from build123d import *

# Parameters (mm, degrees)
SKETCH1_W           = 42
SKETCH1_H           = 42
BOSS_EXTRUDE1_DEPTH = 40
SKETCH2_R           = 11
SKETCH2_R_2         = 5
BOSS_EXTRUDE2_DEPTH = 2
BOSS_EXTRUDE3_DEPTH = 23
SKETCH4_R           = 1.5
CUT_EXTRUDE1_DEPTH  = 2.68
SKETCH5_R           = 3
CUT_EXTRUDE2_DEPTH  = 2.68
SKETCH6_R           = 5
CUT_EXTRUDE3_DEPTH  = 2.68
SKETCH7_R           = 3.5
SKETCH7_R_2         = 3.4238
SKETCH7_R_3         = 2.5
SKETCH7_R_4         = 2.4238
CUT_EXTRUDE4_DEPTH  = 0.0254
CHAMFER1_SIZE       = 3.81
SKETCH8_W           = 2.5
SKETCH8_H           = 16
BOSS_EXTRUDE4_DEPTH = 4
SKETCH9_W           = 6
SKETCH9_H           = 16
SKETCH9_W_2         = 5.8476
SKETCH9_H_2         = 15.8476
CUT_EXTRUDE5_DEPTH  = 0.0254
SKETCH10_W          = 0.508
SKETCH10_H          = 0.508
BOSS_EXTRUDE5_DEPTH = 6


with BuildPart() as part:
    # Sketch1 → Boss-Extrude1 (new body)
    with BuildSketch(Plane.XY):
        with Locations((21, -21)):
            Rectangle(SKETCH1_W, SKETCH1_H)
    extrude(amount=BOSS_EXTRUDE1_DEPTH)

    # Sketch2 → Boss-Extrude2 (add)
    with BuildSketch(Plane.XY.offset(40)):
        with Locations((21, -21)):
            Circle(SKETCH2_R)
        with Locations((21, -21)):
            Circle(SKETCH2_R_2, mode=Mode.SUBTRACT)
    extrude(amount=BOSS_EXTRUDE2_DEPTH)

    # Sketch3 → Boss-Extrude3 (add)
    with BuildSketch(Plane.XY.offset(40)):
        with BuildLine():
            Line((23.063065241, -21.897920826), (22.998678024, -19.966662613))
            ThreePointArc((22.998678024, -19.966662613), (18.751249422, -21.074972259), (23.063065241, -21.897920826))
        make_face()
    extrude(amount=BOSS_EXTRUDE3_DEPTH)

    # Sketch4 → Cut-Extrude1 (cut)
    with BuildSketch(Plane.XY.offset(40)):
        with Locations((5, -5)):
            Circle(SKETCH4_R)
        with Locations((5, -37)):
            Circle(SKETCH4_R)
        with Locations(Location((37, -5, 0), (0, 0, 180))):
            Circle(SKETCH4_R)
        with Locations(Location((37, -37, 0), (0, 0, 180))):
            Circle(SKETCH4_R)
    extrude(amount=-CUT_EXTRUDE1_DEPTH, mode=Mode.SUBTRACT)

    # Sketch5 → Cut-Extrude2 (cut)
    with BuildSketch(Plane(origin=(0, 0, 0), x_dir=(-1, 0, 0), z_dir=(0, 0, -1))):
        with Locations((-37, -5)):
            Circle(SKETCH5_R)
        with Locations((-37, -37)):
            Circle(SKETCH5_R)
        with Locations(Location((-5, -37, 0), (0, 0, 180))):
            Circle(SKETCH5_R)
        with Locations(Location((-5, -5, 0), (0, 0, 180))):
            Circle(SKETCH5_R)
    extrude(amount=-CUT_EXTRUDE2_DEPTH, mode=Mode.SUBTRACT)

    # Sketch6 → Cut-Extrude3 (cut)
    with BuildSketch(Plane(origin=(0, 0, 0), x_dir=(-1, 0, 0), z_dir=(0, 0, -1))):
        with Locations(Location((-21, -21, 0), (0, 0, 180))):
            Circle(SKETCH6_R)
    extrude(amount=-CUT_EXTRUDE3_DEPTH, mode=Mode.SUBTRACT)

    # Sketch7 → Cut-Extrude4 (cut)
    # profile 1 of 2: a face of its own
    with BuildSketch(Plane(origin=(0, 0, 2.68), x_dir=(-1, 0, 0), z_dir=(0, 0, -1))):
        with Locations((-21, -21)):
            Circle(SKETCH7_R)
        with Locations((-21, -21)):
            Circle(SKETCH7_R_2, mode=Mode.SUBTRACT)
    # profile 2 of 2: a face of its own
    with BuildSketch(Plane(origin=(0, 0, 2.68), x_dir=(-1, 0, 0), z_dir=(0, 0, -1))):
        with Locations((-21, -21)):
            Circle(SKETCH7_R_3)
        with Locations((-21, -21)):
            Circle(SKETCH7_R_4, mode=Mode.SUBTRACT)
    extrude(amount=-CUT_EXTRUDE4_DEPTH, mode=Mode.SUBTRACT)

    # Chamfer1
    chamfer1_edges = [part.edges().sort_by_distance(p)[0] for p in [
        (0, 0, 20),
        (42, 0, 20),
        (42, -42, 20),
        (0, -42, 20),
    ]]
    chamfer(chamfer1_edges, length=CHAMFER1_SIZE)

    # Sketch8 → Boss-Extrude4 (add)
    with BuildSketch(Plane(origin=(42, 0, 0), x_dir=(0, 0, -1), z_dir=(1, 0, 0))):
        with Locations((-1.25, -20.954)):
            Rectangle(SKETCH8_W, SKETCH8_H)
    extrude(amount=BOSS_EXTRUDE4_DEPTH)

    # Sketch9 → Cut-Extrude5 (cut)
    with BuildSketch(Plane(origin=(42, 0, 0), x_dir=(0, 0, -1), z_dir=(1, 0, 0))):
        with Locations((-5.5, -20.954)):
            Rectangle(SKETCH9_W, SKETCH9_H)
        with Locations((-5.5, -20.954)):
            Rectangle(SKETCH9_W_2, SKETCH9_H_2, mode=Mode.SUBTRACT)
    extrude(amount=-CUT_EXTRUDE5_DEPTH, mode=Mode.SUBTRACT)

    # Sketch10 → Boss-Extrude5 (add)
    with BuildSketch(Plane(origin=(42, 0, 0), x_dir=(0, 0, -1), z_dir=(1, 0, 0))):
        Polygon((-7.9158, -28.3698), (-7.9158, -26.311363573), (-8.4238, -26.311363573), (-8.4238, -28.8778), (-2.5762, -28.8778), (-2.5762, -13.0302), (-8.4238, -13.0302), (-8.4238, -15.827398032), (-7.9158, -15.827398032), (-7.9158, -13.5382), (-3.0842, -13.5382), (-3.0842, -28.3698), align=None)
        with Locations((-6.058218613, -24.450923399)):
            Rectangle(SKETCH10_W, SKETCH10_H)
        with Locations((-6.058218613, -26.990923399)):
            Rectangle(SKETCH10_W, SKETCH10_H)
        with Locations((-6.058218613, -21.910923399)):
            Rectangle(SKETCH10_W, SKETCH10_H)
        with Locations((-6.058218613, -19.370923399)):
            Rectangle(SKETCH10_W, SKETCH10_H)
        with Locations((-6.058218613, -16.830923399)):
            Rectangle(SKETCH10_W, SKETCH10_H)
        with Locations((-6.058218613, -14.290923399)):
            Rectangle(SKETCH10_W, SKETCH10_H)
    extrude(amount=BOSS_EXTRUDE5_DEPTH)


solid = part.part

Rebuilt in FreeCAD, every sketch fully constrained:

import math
import FreeCAD as App
import Part
import Sketcher

V = App.Vector
Q = App.Units.Quantity


def edges_at(feature, points):
    """Names of the edges that pass closest to the given points."""
    edges = feature.Shape.Edges
    near = lambda p: min(range(len(edges)), key=lambda i: edges[i].distToShape(Part.Vertex(*p))[0])
    return sorted({f"Edge{near(p) + 1}" for p in points})


def add_polygon(sketch, points):
    """Adds a closed chain of lines whose ends are joined by coincident constraints."""
    first, n = sketch.GeometryCount, len(points)
    for a, b in zip(points, points[1:] + points[:1]):
        sketch.addGeometry(Part.LineSegment(App.Vector(*a, 0), App.Vector(*b, 0)), False)
    for i in range(n):
        sketch.addConstraint(Sketcher.Constraint("Coincident", first + i, 2, first + (i + 1) % n, 1))

doc = App.newDocument("Part")
body = doc.addObject("PartDesign::Body", "Body")

sketch1 = body.newObject("Sketcher::SketchObject", "Sketch")
sketch1.AttachmentSupport = (doc.getObject("XY_Plane"), [""])
sketch1.MapMode = "FlatFace"
add_polygon(sketch1, [(0, 0), (0, -42), (42, -42), (42, 0)])
sketch1.addConstraint(Sketcher.Constraint("Vertical", 0))
sketch1.addConstraint(Sketcher.Constraint("Horizontal", 1))
sketch1.addConstraint(Sketcher.Constraint("Vertical", 2))
sketch1.addConstraint(Sketcher.Constraint("Horizontal", 3))
sketch1.addConstraint(Sketcher.Constraint("Coincident", 3, 2, -1, 1))
sketch1.addConstraint(Sketcher.Constraint("Equal", 3, 0))
sketch1.addConstraint(Sketcher.Constraint("DistanceX", 1, 1, 1, 2, Q("42 mm")))
pad1 = body.newObject("PartDesign::Pad", "Pad")
pad1.Profile = sketch1
pad1.Length = 40

sketch2 = body.newObject("Sketcher::SketchObject", "Sketch001")
sketch2.AttachmentSupport = (doc.getObject("XY_Plane"), [""])
sketch2.MapMode = "FlatFace"
sketch2.AttachmentOffset = App.Placement(V(0, 0, 40), App.Rotation())
sketch2.addGeometry(Part.Circle(V(21, -21, 0), V(0, 0, 1), 11), False)
sketch2.addGeometry(Part.Circle(V(21, -21, 0), V(0, 0, 1), 5), False)
sketch2.addConstraint(Sketcher.Constraint("Coincident", 1, 3, 0, 3))
sketch2.addConstraint(Sketcher.Constraint("Diameter", 0, Q("22 mm")))
sketch2.addConstraint(Sketcher.Constraint("Diameter", 1, Q("10 mm")))
sketch2.addConstraint(Sketcher.Constraint("DistanceX", -1, 1, 0, 3, Q("21 mm")))
sketch2.addConstraint(Sketcher.Constraint("DistanceY", 0, 3, -1, 1, Q("21 mm")))
pad2 = body.newObject("PartDesign::Pad", "Pad001")
pad2.Profile = sketch2
pad2.Length = 2

sketch3 = body.newObject("Sketcher::SketchObject", "Sketch002")
sketch3.AttachmentSupport = (doc.getObject("XY_Plane"), [""])
sketch3.MapMode = "FlatFace"
sketch3.AttachmentOffset = App.Placement(V(0, 0, 40), App.Rotation())
sketch3.addGeometry(Part.LineSegment(V(23.1, -21.9, 0), V(23, -20, 0)), False)
sketch3.addGeometry(Part.ArcOfCircle(Part.Circle(V(21, -21, 0), V(0, 0, 1), 2.2), math.radians(27), math.radians(336)), False)
sketch3.addConstraint(Sketcher.Constraint("Coincident", 0, 1, 1, 2))
sketch3.addConstraint(Sketcher.Constraint("Coincident", 1, 1, 0, 2))
sketch3.addConstraint(Sketcher.Constraint("Radius", 1, Q("2.25 mm")))
sketch3.addConstraint(Sketcher.Constraint("DistanceX", -1, 1, 1, 3, Q("21 mm")))
sketch3.addConstraint(Sketcher.Constraint("DistanceY", 1, 3, -1, 1, Q("21 mm")))
sketch3.addConstraint(Sketcher.Constraint("Distance", 0, Q("1.932331 mm")))
sketch3.addConstraint(Sketcher.Constraint("DistanceY", 0, 1, -1, 1, Q("21.897921 mm")))
pad3 = body.newObject("PartDesign::Pad", "Pad002")
pad3.Profile = sketch3
pad3.Length = 23

sketch4 = body.newObject("Sketcher::SketchObject", "Sketch003")
sketch4.AttachmentSupport = (doc.getObject("XY_Plane"), [""])
sketch4.MapMode = "FlatFace"
sketch4.AttachmentOffset = App.Placement(V(0, 0, 40), App.Rotation())
sketch4.addGeometry(Part.Circle(V(5, -5, 0), V(0, 0, 1), 1.5), False)
sketch4.addGeometry(Part.Circle(V(5, -37, 0), V(0, 0, 1), 1.5), False)
sketch4.addGeometry(Part.Circle(V(37, -5, 0), V(0, 0, 1), 1.5), False)
sketch4.addGeometry(Part.Circle(V(37, -37, 0), V(0, 0, 1), 1.5), False)
sketch4.addConstraint(Sketcher.Constraint("Equal", 0, 1))
sketch4.addConstraint(Sketcher.Constraint("Equal", 1, 2))
sketch4.addConstraint(Sketcher.Constraint("Equal", 2, 3))
sketch4.addConstraint(Sketcher.Constraint("Horizontal", 0, 3, 2, 3))
sketch4.addConstraint(Sketcher.Constraint("Horizontal", 1, 3, 3, 3))
sketch4.addConstraint(Sketcher.Constraint("Vertical", 0, 3, 1, 3))
sketch4.addConstraint(Sketcher.Constraint("Vertical", 2, 3, 3, 3))
sketch4.addConstraint(Sketcher.Constraint("Diameter", 0, Q("3 mm")))
sketch4.addConstraint(Sketcher.Constraint("DistanceX", -1, 1, 0, 3, Q("5 mm")))
sketch4.addConstraint(Sketcher.Constraint("DistanceY", 0, 3, -1, 1, Q("5 mm")))
sketch4.addConstraint(Sketcher.Constraint("DistanceY", 1, 3, -1, 1, Q("37 mm")))
sketch4.addConstraint(Sketcher.Constraint("DistanceX", -1, 1, 2, 3, Q("37 mm")))
pocket1 = body.newObject("PartDesign::Pocket", "Pocket")
pocket1.Profile = sketch4
pocket1.Length = 2.68

sketch5 = body.newObject("Sketcher::SketchObject", "Sketch004")
sketch5.AttachmentSupport = (doc.getObject("XY_Plane"), [""])
sketch5.MapMode = "FlatFace"
sketch5.addGeometry(Part.Circle(V(37, -5, 0), V(0, 0, 1), 3), False)
sketch5.addGeometry(Part.Circle(V(37, -37, 0), V(0, 0, 1), 3), False)
sketch5.addGeometry(Part.Circle(V(5, -37, 0), V(0, 0, 1), 3), False)
sketch5.addGeometry(Part.Circle(V(5, -5, 0), V(0, 0, 1), 3), False)
sketch5.addConstraint(Sketcher.Constraint("Equal", 0, 1))
sketch5.addConstraint(Sketcher.Constraint("Equal", 1, 2))
sketch5.addConstraint(Sketcher.Constraint("Equal", 2, 3))
sketch5.addConstraint(Sketcher.Constraint("Horizontal", 1, 3, 2, 3))
sketch5.addConstraint(Sketcher.Constraint("Horizontal", 0, 3, 3, 3))
sketch5.addConstraint(Sketcher.Constraint("Vertical", 0, 3, 1, 3))
sketch5.addConstraint(Sketcher.Constraint("Vertical", 2, 3, 3, 3))
sketch5.addConstraint(Sketcher.Constraint("Diameter", 0, Q("6 mm")))
sketch5.addConstraint(Sketcher.Constraint("DistanceX", -1, 1, 0, 3, Q("37 mm")))
sketch5.addConstraint(Sketcher.Constraint("DistanceY", 0, 3, -1, 1, Q("5 mm")))
sketch5.addConstraint(Sketcher.Constraint("DistanceY", 1, 3, -1, 1, Q("37 mm")))
sketch5.addConstraint(Sketcher.Constraint("DistanceX", -1, 1, 2, 3, Q("5 mm")))
pocket2 = body.newObject("PartDesign::Pocket", "Pocket001")
pocket2.Profile = sketch5
pocket2.Length = 2.68
pocket2.Reversed = True

sketch6 = body.newObject("Sketcher::SketchObject", "Sketch005")
sketch6.AttachmentSupport = (doc.getObject("XY_Plane"), [""])
sketch6.MapMode = "FlatFace"
sketch6.addGeometry(Part.Circle(V(21, -21, 0), V(0, 0, 1), 5), False)
sketch6.addConstraint(Sketcher.Constraint("Diameter", 0, Q("10 mm")))
sketch6.addConstraint(Sketcher.Constraint("DistanceX", -1, 1, 0, 3, Q("21 mm")))
sketch6.addConstraint(Sketcher.Constraint("DistanceY", 0, 3, -1, 1, Q("21 mm")))
pocket3 = body.newObject("PartDesign::Pocket", "Pocket002")
pocket3.Profile = sketch6
pocket3.Length = 2.68
pocket3.Reversed = True

sketch7 = body.newObject("Sketcher::SketchObject", "Sketch006")
sketch7.AttachmentSupport = (doc.getObject("XY_Plane"), [""])
sketch7.MapMode = "FlatFace"
sketch7.AttachmentOffset = App.Placement(V(0, 0, 2.68), App.Rotation())
sketch7.addGeometry(Part.Circle(V(21, -21, 0), V(0, 0, 1), 3.5), False)
sketch7.addGeometry(Part.Circle(V(21, -21, 0), V(0, 0, 1), 3.4), False)
sketch7.addGeometry(Part.Circle(V(21, -21, 0), V(0, 0, 1), 2.5), False)
sketch7.addGeometry(Part.Circle(V(21, -21, 0), V(0, 0, 1), 2.4), False)
sketch7.addConstraint(Sketcher.Constraint("Coincident", 1, 3, 0, 3))
sketch7.addConstraint(Sketcher.Constraint("Coincident", 2, 3, 0, 3))
sketch7.addConstraint(Sketcher.Constraint("Coincident", 3, 3, 0, 3))
sketch7.addConstraint(Sketcher.Constraint("Diameter", 0, Q("7 mm")))
sketch7.addConstraint(Sketcher.Constraint("Diameter", 2, Q("5 mm")))
sketch7.addConstraint(Sketcher.Constraint("DistanceX", -1, 1, 0, 3, Q("21 mm")))
sketch7.addConstraint(Sketcher.Constraint("DistanceY", 0, 3, -1, 1, Q("21 mm")))
sketch7.addConstraint(Sketcher.Constraint("Diameter", 1, Q("6.8476 mm")))
sketch7.addConstraint(Sketcher.Constraint("Diameter", 3, Q("4.8476 mm")))
pocket4 = body.newObject("PartDesign::Pocket", "Pocket003")
pocket4.Profile = sketch7
pocket4.Length = 0.0254
pocket4.Reversed = True
doc.recompute()

chamfer = body.newObject("PartDesign::Chamfer", "Chamfer")
chamfer.Base = (pocket4, edges_at(pocket4, [
    (0, 0, 20),
    (42, 0, 20),
    (42, -42, 20),
    (0, -42, 20),
]))
chamfer.Size = 3.81

sketch8 = body.newObject("Sketcher::SketchObject", "Sketch007")
sketch8.AttachmentSupport = (doc.getObject("YZ_Plane"), [""])
sketch8.MapMode = "FlatFace"
sketch8.AttachmentOffset = App.Placement(V(0, 0, 42), App.Rotation())
add_polygon(sketch8, [(-13, 2.5), (-29, 2.5), (-29, 0), (-13, 0)])
sketch8.addConstraint(Sketcher.Constraint("Horizontal", 0))
sketch8.addConstraint(Sketcher.Constraint("Vertical", 1))
sketch8.addConstraint(Sketcher.Constraint("Horizontal", 2))
sketch8.addConstraint(Sketcher.Constraint("Vertical", 3))
sketch8.addConstraint(Sketcher.Constraint("PointOnObject", 1, 2, -1))
sketch8.addConstraint(Sketcher.Constraint("DistanceX", 0, 2, 0, 1, Q("16 mm")))
sketch8.addConstraint(Sketcher.Constraint("DistanceY", 1, 2, 1, 1, Q("2.5 mm")))
sketch8.addConstraint(Sketcher.Constraint("DistanceX", 0, 2, -1, 1, Q("28.954 mm")))
pad4 = body.newObject("PartDesign::Pad", "Pad003")
pad4.Profile = sketch8
pad4.Length = 4

sketch9 = body.newObject("Sketcher::SketchObject", "Sketch008")
sketch9.AttachmentSupport = (doc.getObject("YZ_Plane"), [""])
sketch9.MapMode = "FlatFace"
sketch9.AttachmentOffset = App.Placement(V(0, 0, 42), App.Rotation())
add_polygon(sketch9, [(-13, 8), (-29, 8), (-29, 2), (-13, 2)])
add_polygon(sketch9, [(-29, 3), (-29, 8), (-13, 8), (-13, 3)])
sketch9.addConstraint(Sketcher.Constraint("Horizontal", 0))
sketch9.addConstraint(Sketcher.Constraint("Vertical", 1))
sketch9.addConstraint(Sketcher.Constraint("Horizontal", 2))
sketch9.addConstraint(Sketcher.Constraint("Vertical", 3))
sketch9.addConstraint(Sketcher.Constraint("Vertical", 4))
sketch9.addConstraint(Sketcher.Constraint("Horizontal", 5))
sketch9.addConstraint(Sketcher.Constraint("Vertical", 6))
sketch9.addConstraint(Sketcher.Constraint("Horizontal", 7))
sketch9.addConstraint(Sketcher.Constraint("DistanceX", 0, 2, 0, 1, Q("16 mm")))
sketch9.addConstraint(Sketcher.Constraint("DistanceY", 1, 2, 1, 1, Q("6 mm")))
sketch9.addConstraint(Sketcher.Constraint("DistanceY", -1, 1, 0, 2, Q("8.5 mm")))
sketch9.addConstraint(Sketcher.Constraint("DistanceX", 5, 1, 5, 2, Q("15.8476 mm")))
sketch9.addConstraint(Sketcher.Constraint("DistanceY", 4, 1, 4, 2, Q("5.8476 mm")))
sketch9.addConstraint(Sketcher.Constraint("DistanceX", 0, 2, -1, 1, Q("28.954 mm")))
sketch9.addConstraint(Sketcher.Constraint("DistanceX", 4, 2, -1, 1, Q("28.8778 mm")))
sketch9.addConstraint(Sketcher.Constraint("DistanceY", -1, 1, 4, 2, Q("8.4238 mm")))
pocket5 = body.newObject("PartDesign::Pocket", "Pocket004")
pocket5.Profile = sketch9
pocket5.Length = 0.0254

sketch10 = body.newObject("Sketcher::SketchObject", "Sketch009")
sketch10.AttachmentSupport = (doc.getObject("YZ_Plane"), [""])
sketch10.MapMode = "FlatFace"
sketch10.AttachmentOffset = App.Placement(V(0, 0, 42), App.Rotation())
add_polygon(sketch10, [(-28.4, 7.9), (-26.3, 7.9), (-26.3, 8.4), (-28.9, 8.4), (-28.9, 2.6), (-13, 2.6), (-13, 8.4), (-15.8, 8.4), (-15.8, 7.9), (-13.5, 7.9), (-13.5, 3.1), (-28.4, 3.1)])
add_polygon(sketch10, [(-24.2, 6.3), (-24.7, 6.3), (-24.7, 5.8), (-24.2, 5.8)])
add_polygon(sketch10, [(-26.7, 6.3), (-27.2, 6.3), (-27.2, 5.8), (-26.7, 5.8)])
add_polygon(sketch10, [(-21.7, 6.3), (-22.2, 6.3), (-22.2, 5.8), (-21.7, 5.8)])
add_polygon(sketch10, [(-19.1, 6.3), (-19.6, 6.3), (-19.6, 5.8), (-19.1, 5.8)])
add_polygon(sketch10, [(-16.6, 6.3), (-17.1, 6.3), (-17.1, 5.8), (-16.6, 5.8)])
add_polygon(sketch10, [(-14, 6.3), (-14.5, 6.3), (-14.5, 5.8), (-14, 5.8)])
sketch10.addConstraint(Sketcher.Constraint("Horizontal", 0))
sketch10.addConstraint(Sketcher.Constraint("Vertical", 1))
sketch10.addConstraint(Sketcher.Constraint("Horizontal", 2))
sketch10.addConstraint(Sketcher.Constraint("Vertical", 3))
sketch10.addConstraint(Sketcher.Constraint("Horizontal", 4))
sketch10.addConstraint(Sketcher.Constraint("Vertical", 5))
sketch10.addConstraint(Sketcher.Constraint("Horizontal", 6))
sketch10.addConstraint(Sketcher.Constraint("Vertical", 7))
sketch10.addConstraint(Sketcher.Constraint("Horizontal", 8))
sketch10.addConstraint(Sketcher.Constraint("Vertical", 9))
sketch10.addConstraint(Sketcher.Constraint("Horizontal", 10))
sketch10.addConstraint(Sketcher.Constraint("Vertical", 11))
sketch10.addConstraint(Sketcher.Constraint("Horizontal", 12))
sketch10.addConstraint(Sketcher.Constraint("Vertical", 13))
sketch10.addConstraint(Sketcher.Constraint("Horizontal", 14))
sketch10.addConstraint(Sketcher.Constraint("Vertical", 15))
sketch10.addConstraint(Sketcher.Constraint("Horizontal", 16))
sketch10.addConstraint(Sketcher.Constraint("Vertical", 17))
sketch10.addConstraint(Sketcher.Constraint("Horizontal", 18))
sketch10.addConstraint(Sketcher.Constraint("Vertical", 19))
sketch10.addConstraint(Sketcher.Constraint("Horizontal", 20))
sketch10.addConstraint(Sketcher.Constraint("Vertical", 21))
sketch10.addConstraint(Sketcher.Constraint("Horizontal", 22))
sketch10.addConstraint(Sketcher.Constraint("Vertical", 23))
sketch10.addConstraint(Sketcher.Constraint("Horizontal", 24))
sketch10.addConstraint(Sketcher.Constraint("Vertical", 25))
sketch10.addConstraint(Sketcher.Constraint("Horizontal", 26))
sketch10.addConstraint(Sketcher.Constraint("Vertical", 27))
sketch10.addConstraint(Sketcher.Constraint("Horizontal", 28))
sketch10.addConstraint(Sketcher.Constraint("Vertical", 29))
sketch10.addConstraint(Sketcher.Constraint("Horizontal", 30))
sketch10.addConstraint(Sketcher.Constraint("Vertical", 31))
sketch10.addConstraint(Sketcher.Constraint("Horizontal", 32))
sketch10.addConstraint(Sketcher.Constraint("Vertical", 33))
sketch10.addConstraint(Sketcher.Constraint("Horizontal", 34))
sketch10.addConstraint(Sketcher.Constraint("Vertical", 35))
sketch10.addConstraint(Sketcher.Constraint("Horizontal", 2, 2, 5, 2))
sketch10.addConstraint(Sketcher.Constraint("Horizontal", 0, 2, 7, 2))
sketch10.addConstraint(Sketcher.Constraint("Horizontal", 15, 2, 16, 2))
sketch10.addConstraint(Sketcher.Constraint("Horizontal", 14, 2, 17, 2))
sketch10.addConstraint(Sketcher.Constraint("Horizontal", 19, 2, 20, 2))
sketch10.addConstraint(Sketcher.Constraint("Horizontal", 18, 2, 21, 2))
sketch10.addConstraint(Sketcher.Constraint("Horizontal", 23, 2, 24, 2))
sketch10.addConstraint(Sketcher.Constraint("Horizontal", 22, 2, 25, 2))
sketch10.addConstraint(Sketcher.Constraint("Horizontal", 27, 2, 28, 2))
sketch10.addConstraint(Sketcher.Constraint("Horizontal", 26, 2, 29, 2))
sketch10.addConstraint(Sketcher.Constraint("Horizontal", 31, 2, 32, 2))
sketch10.addConstraint(Sketcher.Constraint("Horizontal", 30, 2, 33, 2))
sketch10.addConstraint(Sketcher.Constraint("Equal", 14, 16))
sketch10.addConstraint(Sketcher.Constraint("Equal", 18, 20))
sketch10.addConstraint(Sketcher.Constraint("Equal", 22, 24))
sketch10.addConstraint(Sketcher.Constraint("Equal", 26, 28))
sketch10.addConstraint(Sketcher.Constraint("Equal", 30, 32))
sketch10.addConstraint(Sketcher.Constraint("Equal", 34, 1))
sketch10.addConstraint(Sketcher.Constraint("Equal", 7, 13))
sketch10.addConstraint(Sketcher.Constraint("DistanceX", 12, 2, 12, 1, Q("0.508 mm")))
sketch10.addConstraint(Sketcher.Constraint("DistanceX", 16, 2, 12, 2, Q("2.54 mm")))
sketch10.addConstraint(Sketcher.Constraint("DistanceX", 12, 2, 20, 2, Q("2.54 mm")))
sketch10.addConstraint(Sketcher.Constraint("DistanceX", 20, 2, 24, 2, Q("2.54 mm")))
sketch10.addConstraint(Sketcher.Constraint("DistanceX", 24, 2, 28, 2, Q("2.54 mm")))
sketch10.addConstraint(Sketcher.Constraint("DistanceX", 30, 2, 34, 2, Q("2.54 mm")))
sketch10.addConstraint(Sketcher.Constraint("DistanceX", 4, 1, 4, 2, Q("15.8476 mm")))
sketch10.addConstraint(Sketcher.Constraint("DistanceX", 6, 2, 6, 1, Q("2.797198 mm")))
sketch10.addConstraint(Sketcher.Constraint("DistanceX", 8, 1, 8, 2, Q("2.289198 mm")))
sketch10.addConstraint(Sketcher.Constraint("DistanceX", 10, 2, 10, 1, Q("14.8316 mm")))
sketch10.addConstraint(Sketcher.Constraint("DistanceY", 3, 2, 3, 1, Q("5.8476 mm")))
sketch10.addConstraint(Sketcher.Constraint("DistanceY", 9, 2, 9, 1, Q("4.8316 mm")))
sketch10.addConstraint(Sketcher.Constraint("DistanceY", -1, 1, 0, 2, Q("7.9158 mm")))
sketch10.addConstraint(Sketcher.Constraint("DistanceX", 2, 2, -1, 1, Q("28.8778 mm")))
sketch10.addConstraint(Sketcher.Constraint("DistanceX", 0, 1, 0, 2, Q("2.058436 mm")))
sketch10.addConstraint(Sketcher.Constraint("DistanceY", -1, 1, 12, 2, Q("6.312219 mm")))
sketch10.addConstraint(Sketcher.Constraint("DistanceX", 0, 2, 12, 2, Q("1.60644 mm")))
pad5 = body.newObject("PartDesign::Pad", "Pad004")
pad5.Profile = sketch10
pad5.Length = 6

doc.recompute()
